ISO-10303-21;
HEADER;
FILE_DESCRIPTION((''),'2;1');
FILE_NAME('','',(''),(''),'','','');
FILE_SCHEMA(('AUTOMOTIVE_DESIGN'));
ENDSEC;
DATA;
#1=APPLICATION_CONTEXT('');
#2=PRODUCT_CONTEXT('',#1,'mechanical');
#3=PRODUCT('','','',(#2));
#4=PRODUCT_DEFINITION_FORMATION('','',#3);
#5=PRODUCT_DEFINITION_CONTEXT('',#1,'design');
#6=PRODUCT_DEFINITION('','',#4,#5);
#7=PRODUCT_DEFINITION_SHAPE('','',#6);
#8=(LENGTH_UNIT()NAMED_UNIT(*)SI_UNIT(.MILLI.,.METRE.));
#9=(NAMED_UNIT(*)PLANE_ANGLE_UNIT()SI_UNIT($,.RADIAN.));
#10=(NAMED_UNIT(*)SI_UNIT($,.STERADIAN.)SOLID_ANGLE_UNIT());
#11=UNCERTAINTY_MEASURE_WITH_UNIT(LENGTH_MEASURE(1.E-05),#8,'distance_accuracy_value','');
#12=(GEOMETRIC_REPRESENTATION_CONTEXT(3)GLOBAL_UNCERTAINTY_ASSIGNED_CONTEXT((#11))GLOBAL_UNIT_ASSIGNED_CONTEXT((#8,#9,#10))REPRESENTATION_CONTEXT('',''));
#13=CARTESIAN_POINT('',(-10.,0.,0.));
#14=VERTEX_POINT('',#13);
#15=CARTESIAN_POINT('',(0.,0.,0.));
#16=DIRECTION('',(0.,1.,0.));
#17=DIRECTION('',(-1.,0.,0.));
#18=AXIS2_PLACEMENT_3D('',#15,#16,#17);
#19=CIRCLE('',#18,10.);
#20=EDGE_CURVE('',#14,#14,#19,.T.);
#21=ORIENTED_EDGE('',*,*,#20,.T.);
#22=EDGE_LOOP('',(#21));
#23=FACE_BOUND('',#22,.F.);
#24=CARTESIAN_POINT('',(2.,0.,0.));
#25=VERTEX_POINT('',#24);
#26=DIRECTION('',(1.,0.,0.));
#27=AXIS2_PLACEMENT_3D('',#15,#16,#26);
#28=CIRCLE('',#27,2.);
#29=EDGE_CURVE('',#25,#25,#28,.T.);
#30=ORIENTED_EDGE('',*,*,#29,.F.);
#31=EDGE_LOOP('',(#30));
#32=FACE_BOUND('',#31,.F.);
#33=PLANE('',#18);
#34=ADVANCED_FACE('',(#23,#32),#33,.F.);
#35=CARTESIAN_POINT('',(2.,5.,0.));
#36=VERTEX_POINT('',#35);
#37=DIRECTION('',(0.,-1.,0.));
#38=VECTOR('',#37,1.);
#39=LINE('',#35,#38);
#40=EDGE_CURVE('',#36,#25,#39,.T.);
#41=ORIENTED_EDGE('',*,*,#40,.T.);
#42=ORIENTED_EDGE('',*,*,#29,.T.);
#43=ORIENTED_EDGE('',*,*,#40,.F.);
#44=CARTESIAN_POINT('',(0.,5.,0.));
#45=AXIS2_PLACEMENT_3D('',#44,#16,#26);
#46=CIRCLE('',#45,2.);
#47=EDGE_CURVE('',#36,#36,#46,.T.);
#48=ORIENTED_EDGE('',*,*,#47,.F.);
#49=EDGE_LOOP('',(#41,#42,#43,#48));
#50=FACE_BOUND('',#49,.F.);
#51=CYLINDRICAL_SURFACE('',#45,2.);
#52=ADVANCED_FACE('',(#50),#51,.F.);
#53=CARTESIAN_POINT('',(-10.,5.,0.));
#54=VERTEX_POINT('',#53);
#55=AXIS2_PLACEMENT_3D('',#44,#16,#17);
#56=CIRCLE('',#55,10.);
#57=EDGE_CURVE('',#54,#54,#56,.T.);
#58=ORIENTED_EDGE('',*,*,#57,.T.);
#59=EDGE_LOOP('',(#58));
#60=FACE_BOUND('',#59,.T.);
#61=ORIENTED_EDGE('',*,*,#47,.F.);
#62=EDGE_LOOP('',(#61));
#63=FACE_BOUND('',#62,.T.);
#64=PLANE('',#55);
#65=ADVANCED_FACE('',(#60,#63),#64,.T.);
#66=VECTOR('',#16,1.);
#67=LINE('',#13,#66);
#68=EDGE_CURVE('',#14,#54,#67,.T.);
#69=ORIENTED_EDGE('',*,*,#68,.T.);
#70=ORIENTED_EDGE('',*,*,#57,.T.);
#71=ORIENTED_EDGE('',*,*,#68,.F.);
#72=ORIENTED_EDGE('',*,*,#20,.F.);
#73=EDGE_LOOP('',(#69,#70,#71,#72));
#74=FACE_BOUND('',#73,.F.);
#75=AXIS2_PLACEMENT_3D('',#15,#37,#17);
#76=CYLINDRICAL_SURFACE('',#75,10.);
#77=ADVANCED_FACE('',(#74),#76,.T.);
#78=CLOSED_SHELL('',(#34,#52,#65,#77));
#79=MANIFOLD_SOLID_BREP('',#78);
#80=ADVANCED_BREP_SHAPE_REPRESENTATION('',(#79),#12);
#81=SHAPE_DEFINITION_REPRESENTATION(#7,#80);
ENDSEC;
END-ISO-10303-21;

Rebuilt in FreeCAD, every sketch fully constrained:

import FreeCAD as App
import Part
import Sketcher
from FreeCAD import Vector

doc = App.newDocument("Part")
body = doc.addObject("PartDesign::Body", "Body")

# Sketch on XZ plane
sketch1 = body.newObject("Sketcher::SketchObject", "Sketch")
sketch1.AttachmentSupport = (doc.getObject("XZ_Plane"), [""])
sketch1.MapMode = "FlatFace"
sketch1.addGeometry(Part.Circle(Vector(0, 0, 0), Vector(0, 0, 1), 10), False)
sketch1.addConstraint([
    Sketcher.Constraint("Coincident", 0, 3, -1, 1),
    Sketcher.Constraint("Diameter", 0, 20.0),
])
pad1 = body.newObject("PartDesign::Pad", "Pad")
pad1.Profile = sketch1
pad1.Length = 5
pad1.Reversed = True

# Sketch on XZ plane
sketch2 = body.newObject("Sketcher::SketchObject", "Sketch001")
sketch2.AttachmentSupport = (doc.getObject("XZ_Plane"), [""])
sketch2.MapMode = "FlatFace"
sketch2.AttachmentOffset = App.Placement(Vector(0, 0, -5), App.Rotation())
sketch2.addGeometry(Part.Circle(Vector(0, 0, 0), Vector(0, 0, 1), 2), False)
sketch2.addConstraint([
    Sketcher.Constraint("Coincident", 0, 3, -1, 1),
    Sketcher.Constraint("Diameter", 0, 4.0),
])
pocket1 = body.newObject("PartDesign::Pocket", "Pocket")
pocket1.Profile = sketch2
pocket1.Length = 23.75
pocket1.Reversed = True

doc.recompute()
